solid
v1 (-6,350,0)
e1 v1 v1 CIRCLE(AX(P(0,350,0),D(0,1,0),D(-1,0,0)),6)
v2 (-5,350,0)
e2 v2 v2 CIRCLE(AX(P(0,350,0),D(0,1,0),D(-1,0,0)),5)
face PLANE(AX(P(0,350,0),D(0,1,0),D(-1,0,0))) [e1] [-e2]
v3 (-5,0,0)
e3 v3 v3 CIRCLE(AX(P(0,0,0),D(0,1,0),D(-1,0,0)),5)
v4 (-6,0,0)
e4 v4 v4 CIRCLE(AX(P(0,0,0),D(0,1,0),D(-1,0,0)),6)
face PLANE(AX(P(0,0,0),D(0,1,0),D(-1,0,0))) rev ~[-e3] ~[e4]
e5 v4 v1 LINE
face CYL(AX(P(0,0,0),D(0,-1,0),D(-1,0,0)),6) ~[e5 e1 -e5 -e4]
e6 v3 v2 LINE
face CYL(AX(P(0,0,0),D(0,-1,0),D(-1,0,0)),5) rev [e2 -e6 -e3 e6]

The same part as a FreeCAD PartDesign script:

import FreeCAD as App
import Part
import Sketcher
from FreeCAD import Vector

doc = App.newDocument("Part")
params = doc.addObject("Spreadsheet::Sheet", "Params")
for row, (alias, value) in enumerate([
    ("sketch1_diameter", "12 mm"),
    ("sketch1_diameter2", "10 mm"),
    ("pad1_length", "350 mm"),
], start=1):
    params.set(f"A{row}", alias)
    params.set(f"B{row}", "=" + value)
    params.setAlias(f"B{row}", alias)

body = doc.addObject("PartDesign::Body", "Body")

# Sketch on XZ plane
sketch1 = body.newObject("Sketcher::SketchObject", "Sketch")
sketch1.AttachmentSupport = (doc.getObject("XZ_Plane"), [""])
sketch1.MapMode = "FlatFace"
sketch1.addGeometry(Part.Circle(Vector(0, 0, 0), Vector(0, 0, 1), 6), False)
sketch1.addGeometry(Part.Circle(Vector(0, 0, 0), Vector(0, 0, 1), 5), False)
sketch1.addConstraint(Sketcher.Constraint("Coincident", 0, 3, -1, 1))
sketch1.addConstraint(Sketcher.Constraint("Coincident", 1, 3, -1, 1))
sketch1.addConstraint(Sketcher.Constraint("Diameter", 0, 12.0))
sketch1.addConstraint(Sketcher.Constraint("Diameter", 1, 10.0))
sketch1.setExpression("Constraints[2]", "Params.sketch1_diameter")
sketch1.setExpression("Constraints[3]", "Params.sketch1_diameter2")
pad1 = body.newObject("PartDesign::Pad", "Pad")
pad1.Profile = sketch1
pad1.setExpression("Length", "Params.pad1_length")
pad1.Reversed = True

doc.recompute()
